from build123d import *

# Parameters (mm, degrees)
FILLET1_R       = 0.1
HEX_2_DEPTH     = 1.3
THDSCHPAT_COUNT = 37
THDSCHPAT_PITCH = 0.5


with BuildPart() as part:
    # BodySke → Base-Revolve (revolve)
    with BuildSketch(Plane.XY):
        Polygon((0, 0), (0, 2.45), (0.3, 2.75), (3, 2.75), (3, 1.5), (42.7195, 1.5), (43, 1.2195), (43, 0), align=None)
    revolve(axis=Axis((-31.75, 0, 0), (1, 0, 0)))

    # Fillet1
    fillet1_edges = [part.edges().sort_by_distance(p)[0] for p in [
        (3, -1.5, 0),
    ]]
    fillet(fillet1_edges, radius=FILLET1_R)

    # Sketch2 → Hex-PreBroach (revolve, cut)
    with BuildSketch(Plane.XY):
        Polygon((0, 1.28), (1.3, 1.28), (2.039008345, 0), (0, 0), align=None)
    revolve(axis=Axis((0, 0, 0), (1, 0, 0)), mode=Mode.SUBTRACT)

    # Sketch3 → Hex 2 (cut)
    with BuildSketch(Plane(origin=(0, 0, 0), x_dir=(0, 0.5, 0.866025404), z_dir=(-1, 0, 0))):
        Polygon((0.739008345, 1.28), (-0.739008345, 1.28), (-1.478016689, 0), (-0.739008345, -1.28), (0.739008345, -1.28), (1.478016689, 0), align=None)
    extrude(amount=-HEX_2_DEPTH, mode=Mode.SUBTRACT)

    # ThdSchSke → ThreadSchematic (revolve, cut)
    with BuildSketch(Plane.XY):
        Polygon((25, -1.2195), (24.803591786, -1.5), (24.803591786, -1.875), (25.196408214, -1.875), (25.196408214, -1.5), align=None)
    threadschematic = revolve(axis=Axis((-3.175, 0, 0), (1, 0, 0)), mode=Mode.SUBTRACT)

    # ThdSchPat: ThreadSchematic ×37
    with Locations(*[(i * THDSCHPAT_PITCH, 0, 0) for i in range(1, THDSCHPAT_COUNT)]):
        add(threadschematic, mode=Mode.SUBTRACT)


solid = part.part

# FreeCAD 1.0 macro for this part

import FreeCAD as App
import Part
import Sketcher

V = App.Vector
Q = App.Units.Quantity


def edges_at(feature, points):
    """Names of the edges that pass closest to the given points."""
    edges = feature.Shape.Edges
    near = lambda p: min(range(len(edges)), key=lambda i: edges[i].distToShape(Part.Vertex(*p))[0])
    return sorted({f"Edge{near(p) + 1}" for p in points})


def add_polygon(sketch, points):
    """Adds a closed chain of lines whose ends are joined by coincident constraints."""
    first, n = sketch.GeometryCount, len(points)
    for a, b in zip(points, points[1:] + points[:1]):
        sketch.addGeometry(Part.LineSegment(App.Vector(*a, 0), App.Vector(*b, 0)), False)
    for i in range(n):
        sketch.addConstraint(Sketcher.Constraint("Coincident", first + i, 2, first + (i + 1) % n, 1))

doc = App.newDocument("Part")
body = doc.addObject("PartDesign::Body", "Body")

sketch1 = body.newObject("Sketcher::SketchObject", "Sketch")
sketch1.AttachmentSupport = (doc.getObject("XY_Plane"), [""])
sketch1.MapMode = "FlatFace"
add_polygon(sketch1, [(0, 2.45), (0, 0), (43, 0), (43, 1.22), (42.72, 1.5), (3, 1.5), (3, 2.75), (0.3, 2.75)])
sketch1.addConstraint(Sketcher.Constraint("Vertical", 0))
sketch1.addConstraint(Sketcher.Constraint("Horizontal", 1))
sketch1.addConstraint(Sketcher.Constraint("Vertical", 2))
sketch1.addConstraint(Sketcher.Constraint("Horizontal", 4))
sketch1.addConstraint(Sketcher.Constraint("Vertical", 5))
sketch1.addConstraint(Sketcher.Constraint("Horizontal", 6))
sketch1.addConstraint(Sketcher.Constraint("Coincident", 0, 2, -1, 1))
sketch1.addConstraint(Sketcher.Constraint("Perpendicular", 3, 7))
sketch1.addConstraint(Sketcher.Constraint("DistanceX", 1, 1, 1, 2, Q("43 mm")))
sketch1.addConstraint(Sketcher.Constraint("Angle", 3, Q("135 deg")))
sketch1.addConstraint(Sketcher.Constraint("DistanceX", 6, 2, 6, 1, Q("2.7 mm")))
sketch1.addConstraint(Sketcher.Constraint("DistanceX", -1, 1, 4, 2, Q("3 mm")))
sketch1.addConstraint(Sketcher.Constraint("DistanceY", 0, 2, 0, 1, Q("2.45 mm")))
sketch1.addConstraint(Sketcher.Constraint("DistanceY", 5, 1, 5, 2, Q("1.25 mm")))
sketch1.addConstraint(Sketcher.Constraint("DistanceX", 4, 2, 4, 1, Q("39.7195 mm")))
revolution = body.newObject("PartDesign::Revolution", "Revolution")
revolution.Profile = sketch1
revolution.ReferenceAxis = (sketch1, ["H_Axis"])
revolution.Angle = 360
doc.recompute()

fillet = body.newObject("PartDesign::Fillet", "Fillet")
fillet.Base = (revolution, edges_at(revolution, [(3, -1.5, 0)]))
fillet.Radius = 0.1

sketch2 = body.newObject("Sketcher::SketchObject", "Sketch001")
sketch2.AttachmentSupport = (doc.getObject("XY_Plane"), [""])
sketch2.MapMode = "FlatFace"
add_polygon(sketch2, [(1.3, 1.3), (0, 1.3), (0, 0), (2, 0)])
sketch2.addConstraint(Sketcher.Constraint("Horizontal", 0))
sketch2.addConstraint(Sketcher.Constraint("Vertical", 1))
sketch2.addConstraint(Sketcher.Constraint("Horizontal", 2))
sketch2.addConstraint(Sketcher.Constraint("Coincident", 1, 2, -1, 1))
sketch2.addConstraint(Sketcher.Constraint("Angle", 3, Q("120 deg")))
sketch2.addConstraint(Sketcher.Constraint("DistanceX", 0, 2, 0, 1, Q("1.3 mm")))
sketch2.addConstraint(Sketcher.Constraint("DistanceY", 1, 2, 1, 1, Q("1.28 mm")))
groove = body.newObject("PartDesign::Groove", "Groove")
groove.Profile = sketch2
groove.ReferenceAxis = (sketch2, ["H_Axis"])
groove.Angle = 360

sketch3 = body.newObject("Sketcher::SketchObject", "Sketch002")
sketch3.AttachmentSupport = (doc.getObject("YZ_Plane"), [""])
sketch3.MapMode = "FlatFace"
add_polygon(sketch3, [(1.5, 0), (0.7, -1.3), (-0.7, -1.3), (-1.5, 0), (-0.7, 1.3), (0.7, 1.3)])
sketch3.addConstraint(Sketcher.Constraint("Horizontal", 1))
sketch3.addConstraint(Sketcher.Constraint("Horizontal", 4))
sketch3.addConstraint(Sketcher.Constraint("Symmetric", 0, 2, 3, 2, -1, 1))
sketch3.addConstraint(Sketcher.Constraint("Symmetric", 2, 2, 5, 2, -1, 1))
sketch3.addConstraint(Sketcher.Constraint("PointOnObject", 2, 2, -1))
sketch3.addConstraint(Sketcher.Constraint("Parallel", 2, 5))
sketch3.addConstraint(Sketcher.Constraint("Vertical", 1, 2, 3, 2))
sketch3.addConstraint(Sketcher.Constraint("Angle", 0, Q("-120 deg")))
sketch3.addConstraint(Sketcher.Constraint("DistanceY", 0, 2, -1, 1, Q("1.28 mm")))
sketch3.addConstraint(Sketcher.Constraint("DistanceX", 1, 2, 1, 1, Q("1.478017 mm")))
pocket1 = body.newObject("PartDesign::Pocket", "Pocket")
pocket1.Profile = sketch3
pocket1.Length = 1.3
pocket1.Reversed = True

sketch4 = body.newObject("Sketcher::SketchObject", "Sketch003")
sketch4.AttachmentSupport = (doc.getObject("XY_Plane"), [""])
sketch4.MapMode = "FlatFace"
add_polygon(sketch4, [(25, -1.22), (24.8, -1.5), (24.8, -1.88), (25.2, -1.88), (25.2, -1.5)])
sketch4.addConstraint(Sketcher.Constraint("Vertical", 1))
sketch4.addConstraint(Sketcher.Constraint("Horizontal", 2))
sketch4.addConstraint(Sketcher.Constraint("Vertical", 3))
sketch4.addConstraint(Sketcher.Constraint("Horizontal", 0, 2, 3, 2))
sketch4.addConstraint(Sketcher.Constraint("Equal", 0, 4))
sketch4.addConstraint(Sketcher.Constraint("Angle", 0, Q("-125 deg")))
sketch4.addConstraint(Sketcher.Constraint("DistanceX", -1, 1, 4, 2, Q("25 mm")))
sketch4.addConstraint(Sketcher.Constraint("DistanceY", 0, 2, -1, 1, Q("1.5 mm")))
sketch4.addConstraint(Sketcher.Constraint("DistanceY", 1, 2, 1, 1, Q("0.375 mm")))
sketch4.addConstraint(Sketcher.Constraint("DistanceY", 4, 2, -1, 1, Q("1.2195 mm")))
groove2 = body.newObject("PartDesign::Groove", "Groove001")
groove2.Profile = sketch4
groove2.ReferenceAxis = (sketch4, ["H_Axis"])
groove2.Angle = 360
doc.recompute()

linearpattern = body.newObject("PartDesign::LinearPattern", "LinearPattern")
linearpattern.Originals = [groove2]
linearpattern.Direction = (doc.getObject("X_Axis"), [""])
linearpattern.Mode = "offset"
linearpattern.Offset = 0.5
linearpattern.Occurrences = 37
body.Tip = linearpattern

doc.recompute()
